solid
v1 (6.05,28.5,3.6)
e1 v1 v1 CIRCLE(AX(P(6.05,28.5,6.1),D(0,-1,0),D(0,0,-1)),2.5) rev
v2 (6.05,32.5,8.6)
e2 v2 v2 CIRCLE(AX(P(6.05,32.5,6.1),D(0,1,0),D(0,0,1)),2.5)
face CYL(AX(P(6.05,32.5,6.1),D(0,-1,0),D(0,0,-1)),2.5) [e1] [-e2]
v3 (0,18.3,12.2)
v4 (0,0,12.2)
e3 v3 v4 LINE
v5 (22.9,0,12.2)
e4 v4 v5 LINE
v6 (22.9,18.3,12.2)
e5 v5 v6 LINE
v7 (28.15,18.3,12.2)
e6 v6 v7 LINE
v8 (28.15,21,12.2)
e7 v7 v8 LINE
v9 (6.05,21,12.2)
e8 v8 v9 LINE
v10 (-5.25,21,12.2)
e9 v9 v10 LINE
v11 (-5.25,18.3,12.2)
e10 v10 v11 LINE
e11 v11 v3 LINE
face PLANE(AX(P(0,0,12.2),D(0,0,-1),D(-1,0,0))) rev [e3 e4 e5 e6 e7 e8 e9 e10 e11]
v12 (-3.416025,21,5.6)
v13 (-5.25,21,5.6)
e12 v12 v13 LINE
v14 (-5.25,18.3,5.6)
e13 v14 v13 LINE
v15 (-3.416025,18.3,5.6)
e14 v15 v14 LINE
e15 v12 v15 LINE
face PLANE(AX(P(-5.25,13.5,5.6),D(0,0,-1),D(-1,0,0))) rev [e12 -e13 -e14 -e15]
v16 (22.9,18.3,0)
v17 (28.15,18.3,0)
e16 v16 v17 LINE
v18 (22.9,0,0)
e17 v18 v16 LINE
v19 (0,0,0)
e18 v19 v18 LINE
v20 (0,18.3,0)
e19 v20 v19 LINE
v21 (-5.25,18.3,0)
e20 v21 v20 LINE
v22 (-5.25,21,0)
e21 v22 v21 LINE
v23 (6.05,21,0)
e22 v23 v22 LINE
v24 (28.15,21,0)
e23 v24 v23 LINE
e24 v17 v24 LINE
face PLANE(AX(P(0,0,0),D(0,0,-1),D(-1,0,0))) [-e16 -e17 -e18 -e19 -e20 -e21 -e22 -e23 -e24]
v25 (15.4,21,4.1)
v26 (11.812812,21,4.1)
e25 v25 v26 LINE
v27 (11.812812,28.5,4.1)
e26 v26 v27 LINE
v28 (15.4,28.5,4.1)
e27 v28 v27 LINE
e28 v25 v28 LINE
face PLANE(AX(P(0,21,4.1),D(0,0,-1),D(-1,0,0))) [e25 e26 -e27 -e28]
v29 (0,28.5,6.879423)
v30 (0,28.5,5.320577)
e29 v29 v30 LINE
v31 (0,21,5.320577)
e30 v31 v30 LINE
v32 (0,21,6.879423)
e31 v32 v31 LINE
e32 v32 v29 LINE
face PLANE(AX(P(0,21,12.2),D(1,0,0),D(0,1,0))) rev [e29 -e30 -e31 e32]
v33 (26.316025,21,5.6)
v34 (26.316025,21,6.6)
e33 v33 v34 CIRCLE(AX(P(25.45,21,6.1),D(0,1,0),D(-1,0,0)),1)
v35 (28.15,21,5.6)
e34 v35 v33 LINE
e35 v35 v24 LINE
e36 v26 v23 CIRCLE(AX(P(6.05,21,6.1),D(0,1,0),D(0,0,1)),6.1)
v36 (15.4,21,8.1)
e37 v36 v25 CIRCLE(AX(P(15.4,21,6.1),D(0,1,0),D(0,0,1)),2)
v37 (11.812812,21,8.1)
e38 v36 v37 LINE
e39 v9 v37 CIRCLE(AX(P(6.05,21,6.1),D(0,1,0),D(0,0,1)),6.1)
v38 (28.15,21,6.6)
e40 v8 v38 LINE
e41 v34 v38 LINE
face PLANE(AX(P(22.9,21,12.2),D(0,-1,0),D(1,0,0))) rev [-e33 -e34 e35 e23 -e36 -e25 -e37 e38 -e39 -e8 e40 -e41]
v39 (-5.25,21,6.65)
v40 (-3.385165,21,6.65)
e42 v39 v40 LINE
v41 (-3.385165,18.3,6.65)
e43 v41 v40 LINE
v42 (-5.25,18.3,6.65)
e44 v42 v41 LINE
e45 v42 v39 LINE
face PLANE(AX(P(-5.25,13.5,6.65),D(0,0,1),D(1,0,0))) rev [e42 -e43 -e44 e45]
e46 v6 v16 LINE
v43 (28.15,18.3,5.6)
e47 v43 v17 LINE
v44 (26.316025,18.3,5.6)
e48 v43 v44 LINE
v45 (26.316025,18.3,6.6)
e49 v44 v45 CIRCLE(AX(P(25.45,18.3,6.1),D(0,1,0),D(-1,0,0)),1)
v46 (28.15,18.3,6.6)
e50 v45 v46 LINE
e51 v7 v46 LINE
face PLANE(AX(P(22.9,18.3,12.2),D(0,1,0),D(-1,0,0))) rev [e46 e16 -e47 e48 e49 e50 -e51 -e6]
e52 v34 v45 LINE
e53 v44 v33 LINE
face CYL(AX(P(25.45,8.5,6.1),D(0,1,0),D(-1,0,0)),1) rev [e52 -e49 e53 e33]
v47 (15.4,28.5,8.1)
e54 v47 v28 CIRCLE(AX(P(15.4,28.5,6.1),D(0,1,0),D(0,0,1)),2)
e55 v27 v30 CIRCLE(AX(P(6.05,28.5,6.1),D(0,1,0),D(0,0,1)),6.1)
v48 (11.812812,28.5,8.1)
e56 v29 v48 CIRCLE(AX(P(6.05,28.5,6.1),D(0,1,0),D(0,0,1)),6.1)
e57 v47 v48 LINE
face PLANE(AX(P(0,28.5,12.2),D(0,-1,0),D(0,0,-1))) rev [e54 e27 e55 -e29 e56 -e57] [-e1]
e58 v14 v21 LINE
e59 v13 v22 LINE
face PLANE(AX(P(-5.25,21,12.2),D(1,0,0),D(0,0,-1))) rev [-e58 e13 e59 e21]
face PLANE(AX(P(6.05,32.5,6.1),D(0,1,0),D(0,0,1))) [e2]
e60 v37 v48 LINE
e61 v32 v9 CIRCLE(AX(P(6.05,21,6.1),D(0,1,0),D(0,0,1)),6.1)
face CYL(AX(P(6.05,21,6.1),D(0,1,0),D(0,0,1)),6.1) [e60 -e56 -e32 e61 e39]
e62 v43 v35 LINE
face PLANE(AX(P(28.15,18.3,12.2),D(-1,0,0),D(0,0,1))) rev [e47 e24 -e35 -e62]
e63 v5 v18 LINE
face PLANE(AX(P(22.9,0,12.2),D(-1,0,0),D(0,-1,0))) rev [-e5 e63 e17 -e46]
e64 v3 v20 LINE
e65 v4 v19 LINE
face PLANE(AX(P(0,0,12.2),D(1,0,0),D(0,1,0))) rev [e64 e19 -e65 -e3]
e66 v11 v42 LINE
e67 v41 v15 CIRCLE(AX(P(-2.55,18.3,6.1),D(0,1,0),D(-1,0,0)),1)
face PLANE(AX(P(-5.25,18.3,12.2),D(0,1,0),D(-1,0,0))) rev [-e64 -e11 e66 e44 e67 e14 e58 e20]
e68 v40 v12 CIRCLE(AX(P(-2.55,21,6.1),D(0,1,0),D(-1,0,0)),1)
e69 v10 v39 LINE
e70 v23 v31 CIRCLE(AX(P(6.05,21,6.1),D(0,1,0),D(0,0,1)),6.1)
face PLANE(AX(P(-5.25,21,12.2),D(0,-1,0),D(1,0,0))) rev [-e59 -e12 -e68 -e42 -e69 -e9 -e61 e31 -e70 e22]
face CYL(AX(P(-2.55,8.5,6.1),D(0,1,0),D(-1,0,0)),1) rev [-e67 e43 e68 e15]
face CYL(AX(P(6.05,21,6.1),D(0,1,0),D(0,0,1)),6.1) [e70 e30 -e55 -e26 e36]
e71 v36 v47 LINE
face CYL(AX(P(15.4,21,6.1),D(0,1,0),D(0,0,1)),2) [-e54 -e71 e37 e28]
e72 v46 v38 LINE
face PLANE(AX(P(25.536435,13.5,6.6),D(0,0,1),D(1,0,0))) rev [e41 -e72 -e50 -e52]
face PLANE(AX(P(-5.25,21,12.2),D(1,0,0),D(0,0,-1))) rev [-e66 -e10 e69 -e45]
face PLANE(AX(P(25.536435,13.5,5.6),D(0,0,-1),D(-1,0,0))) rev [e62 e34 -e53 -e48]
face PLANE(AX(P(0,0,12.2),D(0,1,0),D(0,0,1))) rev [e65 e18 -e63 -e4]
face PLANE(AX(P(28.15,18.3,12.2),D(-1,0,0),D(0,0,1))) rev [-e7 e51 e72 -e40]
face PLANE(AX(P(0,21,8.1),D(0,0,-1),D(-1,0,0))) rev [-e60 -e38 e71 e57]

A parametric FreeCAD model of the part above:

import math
import FreeCAD as App
import Part
import Sketcher

V = App.Vector
Q = App.Units.Quantity

doc = App.newDocument("Part")
params = doc.addObject("Spreadsheet::Sheet", "Params")
for row, (alias, value) in enumerate([
    ("sketch1_width", "22.9 mm"),
    ("sketch1_height", "2.7 mm"),
    ("sketch1_height2", "18.3 mm"),
    ("sketch1_height3", "7.5 mm"),
    ("sketch1_width2", "5.25 mm"),
    ("pad1_length", "12.2 mm"),
    ("sketch2_diameter", "2 mm"),
    ("pocket1_length", "12.5 mm"),
    ("sketch3_diameter", "5 mm"),
    ("pad2_length", "4 mm"),
    ("sketch4_radius", "2 mm"),
    ("sketch4_radius2", "6.1 mm"),
    ("sketch4_width", "6.05 mm"),
    ("sketch4_width2", "16.85 mm"),
    ("pocket2_length", "7.5 mm"),
    ("sketch5_height", "1 mm"),
    ("sketch5_height2", "1.05 mm"),
    ("pocket3_length", "7.5 mm"),
], start=1):
    params.set(f"A{row}", alias)
    params.set(f"B{row}", "=" + value)
    params.setAlias(f"B{row}", alias)

body = doc.addObject("PartDesign::Body", "Body")

sketch1 = body.newObject("Sketcher::SketchObject", "Sketch")
sketch1.AttachmentSupport = (doc.getObject("XY_Plane"), [""])
sketch1.MapMode = "FlatFace"
sketch1.addGeometry(Part.LineSegment(V(-5.2, 21, 0), V(-5.2, 18.3, 0)), False)
sketch1.addGeometry(Part.LineSegment(V(-5.2, 18.3, 0), V(0, 18.3, 0)), False)
sketch1.addGeometry(Part.LineSegment(V(0, 18.3, 0), V(0, 0, 0)), False)
sketch1.addGeometry(Part.LineSegment(V(0, 0, 0), V(22.9, 0, 0)), False)
sketch1.addGeometry(Part.LineSegment(V(22.9, 0, 0), V(22.9, 18.3, 0)), False)
sketch1.addGeometry(Part.LineSegment(V(22.9, 18.3, 0), V(28.1, 18.3, 0)), False)
sketch1.addGeometry(Part.LineSegment(V(28.1, 18.3, 0), V(28.1, 21, 0)), False)
sketch1.addGeometry(Part.LineSegment(V(28.1, 21, 0), V(22.9, 21, 0)), False)
sketch1.addGeometry(Part.LineSegment(V(22.9, 21, 0), V(22.9, 28.5, 0)), False)
sketch1.addGeometry(Part.LineSegment(V(22.9, 28.5, 0), V(0, 28.5, 0)), False)
sketch1.addGeometry(Part.LineSegment(V(0, 28.5, 0), V(0, 21, 0)), False)
sketch1.addGeometry(Part.LineSegment(V(0, 21, 0), V(-5.2, 21, 0)), False)
sketch1.addConstraint(Sketcher.Constraint("Coincident", 0, 2, 1, 1))
sketch1.addConstraint(Sketcher.Constraint("Coincident", 1, 2, 2, 1))
sketch1.addConstraint(Sketcher.Constraint("Coincident", 2, 2, 3, 1))
sketch1.addConstraint(Sketcher.Constraint("Coincident", 3, 2, 4, 1))
sketch1.addConstraint(Sketcher.Constraint("Coincident", 4, 2, 5, 1))
sketch1.addConstraint(Sketcher.Constraint("Coincident", 5, 2, 6, 1))
sketch1.addConstraint(Sketcher.Constraint("Coincident", 6, 2, 7, 1))
sketch1.addConstraint(Sketcher.Constraint("Coincident", 7, 2, 8, 1))
sketch1.addConstraint(Sketcher.Constraint("Coincident", 8, 2, 9, 1))
sketch1.addConstraint(Sketcher.Constraint("Coincident", 9, 2, 10, 1))
sketch1.addConstraint(Sketcher.Constraint("Coincident", 10, 2, 11, 1))
sketch1.addConstraint(Sketcher.Constraint("Coincident", 11, 2, 0, 1))
sketch1.addConstraint(Sketcher.Constraint("Vertical", 0))
sketch1.addConstraint(Sketcher.Constraint("Horizontal", 1))
sketch1.addConstraint(Sketcher.Constraint("Vertical", 2))
sketch1.addConstraint(Sketcher.Constraint("Horizontal", 3))
sketch1.addConstraint(Sketcher.Constraint("Vertical", 4))
sketch1.addConstraint(Sketcher.Constraint("Horizontal", 5))
sketch1.addConstraint(Sketcher.Constraint("Vertical", 6))
sketch1.addConstraint(Sketcher.Constraint("Horizontal", 7))
sketch1.addConstraint(Sketcher.Constraint("Vertical", 8))
sketch1.addConstraint(Sketcher.Constraint("Horizontal", 9))
sketch1.addConstraint(Sketcher.Constraint("Vertical", 10))
sketch1.addConstraint(Sketcher.Constraint("Horizontal", 11))
sketch1.addConstraint(Sketcher.Constraint("Coincident", 2, 2, -1, 1))
sketch1.addConstraint(Sketcher.Constraint("PointOnObject", 9, 2, -2))
sketch1.addConstraint(Sketcher.Constraint("Horizontal", 1, 2, 4, 2))
sketch1.addConstraint(Sketcher.Constraint("Horizontal", 7, 2, 10, 2))
sketch1.addConstraint(Sketcher.Constraint("Vertical", 4, 2, 7, 2))
sketch1.addConstraint(Sketcher.Constraint("Equal", 1, 5))
sketch1.addConstraint(Sketcher.Constraint("DistanceX", 3, 1, 3, 2, Q("22.9 mm")))
sketch1.addConstraint(Sketcher.Constraint("DistanceY", 0, 2, 0, 1, Q("2.7 mm")))
sketch1.addConstraint(Sketcher.Constraint("DistanceY", 2, 2, 2, 1, Q("18.3 mm")))
sketch1.addConstraint(Sketcher.Constraint("DistanceY", 8, 1, 8, 2, Q("7.5 mm")))
sketch1.addConstraint(Sketcher.Constraint("DistanceX", 1, 1, 1, 2, Q("5.25 mm")))
sketch1.setExpression("Constraints[30]", "Params.sketch1_width")
sketch1.setExpression("Constraints[31]", "Params.sketch1_height")
sketch1.setExpression("Constraints[32]", "Params.sketch1_height2")
sketch1.setExpression("Constraints[33]", "Params.sketch1_height3")
sketch1.setExpression("Constraints[34]", "Params.sketch1_width2")
pad1 = body.newObject("PartDesign::Pad", "Pad")
pad1.Profile = sketch1
pad1.setExpression("Length", "Params.pad1_length")

sketch2 = body.newObject("Sketcher::SketchObject", "Sketch001")
sketch2.AttachmentSupport = (doc.getObject("XZ_Plane"), [""])
sketch2.MapMode = "FlatFace"
sketch2.AttachmentOffset = App.Placement(V(0, 0, -21), App.Rotation())
sketch2.addGeometry(Part.Circle(V(-2.5, 6.1, 0), V(0, 0, 1), 1), False)
sketch2.addGeometry(Part.Circle(V(25.4, 6.1, 0), V(0, 0, 1), 1), False)
sketch2.addConstraint(Sketcher.Constraint("Equal", 0, 1))
sketch2.addConstraint(Sketcher.Constraint("Horizontal", 0, 3, 1, 3))
sketch2.addConstraint(Sketcher.Constraint("Diameter", 0, Q("2 mm")))
sketch2.addConstraint(Sketcher.Constraint("DistanceX", 0, 3, 1, 3, Q("28 mm")))
sketch2.addConstraint(Sketcher.Constraint("DistanceY", -1, 1, 0, 3, Q("6.1 mm")))
sketch2.addConstraint(Sketcher.Constraint("DistanceX", 0, 3, -1, 1, Q("2.55 mm")))
sketch2.setExpression("Constraints[2]", "Params.sketch2_diameter")
pocket1 = body.newObject("PartDesign::Pocket", "Pocket")
pocket1.Profile = sketch2
pocket1.setExpression("Length", "Params.pocket1_length")
pocket1.Reversed = True

sketch3 = body.newObject("Sketcher::SketchObject", "Sketch002")
sketch3.AttachmentSupport = (doc.getObject("XZ_Plane"), [""])
sketch3.MapMode = "FlatFace"
sketch3.AttachmentOffset = App.Placement(V(0, 0, -28.5), App.Rotation())
sketch3.addGeometry(Part.Circle(V(6, 6.1, 0), V(0, 0, 1), 2.5), False)
sketch3.addConstraint(Sketcher.Constraint("Diameter", 0, Q("5 mm")))
sketch3.addConstraint(Sketcher.Constraint("DistanceY", -1, 1, 0, 3, Q("6.1 mm")))
sketch3.addConstraint(Sketcher.Constraint("DistanceX", -1, 1, 0, 3, Q("6.05 mm")))
sketch3.setExpression("Constraints[0]", "Params.sketch3_diameter")
pad2 = body.newObject("PartDesign::Pad", "Pad001")
pad2.Profile = sketch3
pad2.setExpression("Length", "Params.pad2_length")
pad2.Reversed = True

sketch4 = body.newObject("Sketcher::SketchObject", "Sketch003")
sketch4.AttachmentSupport = (doc.getObject("XZ_Plane"), [""])
sketch4.MapMode = "FlatFace"
sketch4.AttachmentOffset = App.Placement(V(0, 0, -28.5), App.Rotation())
sketch4.addGeometry(Part.LineSegment(V(6.1, 0, 0), V(0, 0, 0)), False)
sketch4.addGeometry(Part.LineSegment(V(0, 0, 0), V(0, 5.3, 0)), False)
sketch4.addGeometry(Part.ArcOfCircle(Part.Circle(V(6.1, 6.1, 0), V(0, 0, 1), 6.1), math.radians(-173), math.radians(-90)), False)
sketch4.addGeometry(Part.LineSegment(V(22.9, 0, 0), V(6.1, 0, 0)), False)
sketch4.addGeometry(Part.ArcOfCircle(Part.Circle(V(6, 6.1, 0), V(0, 0, 1), 6.1), math.radians(-90), math.radians(-19)), False)
sketch4.addGeometry(Part.LineSegment(V(11.8, 4.1, 0), V(15.4, 4.1, 0)), False)
sketch4.addGeometry(Part.ArcOfCircle(Part.Circle(V(15.4, 6.1, 0), V(0, 0, 1), 2), math.radians(-90), math.radians(90)), False)
sketch4.addGeometry(Part.LineSegment(V(15.4, 8.1, 0), V(11.8, 8.1, 0)), False)
sketch4.addGeometry(Part.ArcOfCircle(Part.Circle(V(6, 6.1, 0), V(0, 0, 1), 6.1), math.radians(19), math.radians(90)), False)
sketch4.addGeometry(Part.LineSegment(V(6.1, 12.2, 0), V(22.9, 12.2, 0)), False)
sketch4.addGeometry(Part.LineSegment(V(22.9, 12.2, 0), V(22.9, 0, 0)), False)
sketch4.addGeometry(Part.ArcOfCircle(Part.Circle(V(6, 6.1, 0), V(0, 0, 1), 6.1), math.radians(90), math.radians(173)), False)
sketch4.addGeometry(Part.LineSegment(V(0, 6.9, 0), V(0, 12.2, 0)), False)
sketch4.addGeometry(Part.LineSegment(V(0, 12.2, 0), V(6.1, 12.2, 0)), False)
sketch4.addConstraint(Sketcher.Constraint("Coincident", 0, 2, 1, 1))
sketch4.addConstraint(Sketcher.Constraint("Coincident", 1, 2, 2, 1))
sketch4.addConstraint(Sketcher.Constraint("Tangent", 2, 2, 0, 1))
sketch4.addConstraint(Sketcher.Constraint("Tangent", 3, 2, 4, 1))
sketch4.addConstraint(Sketcher.Constraint("Coincident", 4, 2, 5, 1))
sketch4.addConstraint(Sketcher.Constraint("Tangent", 5, 2, 6, 1))
sketch4.addConstraint(Sketcher.Constraint("Tangent", 6, 2, 7, 1))
sketch4.addConstraint(Sketcher.Constraint("Coincident", 7, 2, 8, 1))
sketch4.addConstraint(Sketcher.Constraint("Tangent", 8, 2, 9, 1))
sketch4.addConstraint(Sketcher.Constraint("Coincident", 9, 2, 10, 1))
sketch4.addConstraint(Sketcher.Constraint("Coincident", 10, 2, 3, 1))
sketch4.addConstraint(Sketcher.Constraint("Coincident", 11, 2, 12, 1))
sketch4.addConstraint(Sketcher.Constraint("Coincident", 12, 2, 13, 1))
sketch4.addConstraint(Sketcher.Constraint("Tangent", 13, 2, 11, 1))
sketch4.addConstraint(Sketcher.Constraint("Horizontal", 0))
sketch4.addConstraint(Sketcher.Constraint("Vertical", 1))
sketch4.addConstraint(Sketcher.Constraint("Horizontal", 3))
sketch4.addConstraint(Sketcher.Constraint("Horizontal", 5))
sketch4.addConstraint(Sketcher.Constraint("Horizontal", 7))
sketch4.addConstraint(Sketcher.Constraint("Horizontal", 9))
sketch4.addConstraint(Sketcher.Constraint("Vertical", 10))
sketch4.addConstraint(Sketcher.Constraint("Vertical", 12))
sketch4.addConstraint(Sketcher.Constraint("Horizontal", 13))
sketch4.addConstraint(Sketcher.Constraint("Coincident", 0, 2, -1, 1))
sketch4.addConstraint(Sketcher.Constraint("Coincident", 4, 3, 2, 3))
sketch4.addConstraint(Sketcher.Constraint("Coincident", 8, 3, 2, 3))
sketch4.addConstraint(Sketcher.Constraint("Coincident", 11, 3, 2, 3))
sketch4.addConstraint(Sketcher.Constraint("Equal", 2, 4))
sketch4.addConstraint(Sketcher.Constraint("Equal", 4, 8))
sketch4.addConstraint(Sketcher.Constraint("Equal", 8, 11))
sketch4.addConstraint(Sketcher.Constraint("PointOnObject", 11, 2, -2))
sketch4.addConstraint(Sketcher.Constraint("Horizontal", 4, 3, 6, 3))
sketch4.addConstraint(Sketcher.Constraint("Radius", 6, Q("2 mm")))
sketch4.addConstraint(Sketcher.Constraint("Radius", 2, Q("6.1 mm")))
sketch4.addConstraint(Sketcher.Constraint("DistanceX", 0, 2, 0, 1, Q("6.05 mm")))
sketch4.addConstraint(Sketcher.Constraint("DistanceX", 3, 2, 3, 1, Q("16.85 mm")))
sketch4.addConstraint(Sketcher.Constraint("DistanceX", -1, 1, 6, 3, Q("15.4 mm")))
sketch4.setExpression("Constraints[32]", "Params.sketch4_radius")
sketch4.setExpression("Constraints[33]", "Params.sketch4_radius2")
sketch4.setExpression("Constraints[34]", "Params.sketch4_width")
sketch4.setExpression("Constraints[35]", "Params.sketch4_width2")
pocket2 = body.newObject("PartDesign::Pocket", "Pocket001")
pocket2.Profile = sketch4
pocket2.setExpression("Length", "Params.pocket2_length")
pocket2.Reversed = True

sketch5 = body.newObject("Sketcher::SketchObject", "Sketch004")
sketch5.AttachmentSupport = (doc.getObject("XZ_Plane"), [""])
sketch5.MapMode = "FlatFace"
sketch5.AttachmentOffset = App.Placement(V(0, 0, -21), App.Rotation())
sketch5.addGeometry(Part.LineSegment(V(-5.3, 5.6, 0), V(-5.3, 6.7, 0)), False)
sketch5.addGeometry(Part.LineSegment(V(-5.3, 6.7, 0), V(-2.5, 6.7, 0)), False)
sketch5.addGeometry(Part.LineSegment(V(-2.5, 6.7, 0), V(-2.5, 5.6, 0)), False)
sketch5.addGeometry(Part.LineSegment(V(-2.5, 5.6, 0), V(-5.3, 5.6, 0)), False)
sketch5.addGeometry(Part.LineSegment(V(25.5, 5.6, 0), V(25.5, 6.6, 0)), False)
sketch5.addGeometry(Part.LineSegment(V(25.5, 6.6, 0), V(28.2, 6.6, 0)), False)
sketch5.addGeometry(Part.LineSegment(V(28.2, 6.6, 0), V(28.2, 5.6, 0)), False)
sketch5.addGeometry(Part.LineSegment(V(28.2, 5.6, 0), V(25.5, 5.6, 0)), False)
sketch5.addConstraint(Sketcher.Constraint("Coincident", 0, 2, 1, 1))
sketch5.addConstraint(Sketcher.Constraint("Coincident", 1, 2, 2, 1))
sketch5.addConstraint(Sketcher.Constraint("Coincident", 2, 2, 3, 1))
sketch5.addConstraint(Sketcher.Constraint("Coincident", 3, 2, 0, 1))
sketch5.addConstraint(Sketcher.Constraint("Coincident", 4, 2, 5, 1))
sketch5.addConstraint(Sketcher.Constraint("Coincident", 5, 2, 6, 1))
sketch5.addConstraint(Sketcher.Constraint("Coincident", 6, 2, 7, 1))
sketch5.addConstraint(Sketcher.Constraint("Coincident", 7, 2, 4, 1))
sketch5.addConstraint(Sketcher.Constraint("Vertical", 0))
sketch5.addConstraint(Sketcher.Constraint("Horizontal", 1))
sketch5.addConstraint(Sketcher.Constraint("Vertical", 2))
sketch5.addConstraint(Sketcher.Constraint("Horizontal", 3))
sketch5.addConstraint(Sketcher.Constraint("Vertical", 4))
sketch5.addConstraint(Sketcher.Constraint("Horizontal", 5))
sketch5.addConstraint(Sketcher.Constraint("Vertical", 6))
sketch5.addConstraint(Sketcher.Constraint("Horizontal", 7))
sketch5.addConstraint(Sketcher.Constraint("Horizontal", 3, 2, 6, 2))
sketch5.addConstraint(Sketcher.Constraint("DistanceY", 4, 1, 4, 2, Q("1 mm")))
sketch5.addConstraint(Sketcher.Constraint("DistanceY", 0, 1, 0, 2, Q("1.05 mm")))
sketch5.addConstraint(Sketcher.Constraint("DistanceY", -1, 1, 2, 2, Q("5.6 mm")))
sketch5.addConstraint(Sketcher.Constraint("DistanceX", 0, 2, 5, 2, Q("33.4 mm")))
sketch5.addConstraint(Sketcher.Constraint("DistanceX", 0, 2, -1, 1, Q("5.25 mm")))
sketch5.addConstraint(Sketcher.Constraint("DistanceX", 1, 2, 4, 2, Q("28.014298 mm")))
sketch5.addConstraint(Sketcher.Constraint("DistanceX", 1, 1, 1, 2, Q("2.772137 mm")))
sketch5.setExpression("Constraints[17]", "Params.sketch5_height")
sketch5.setExpression("Constraints[18]", "Params.sketch5_height2")
pocket3 = body.newObject("PartDesign::Pocket", "Pocket002")
pocket3.Profile = sketch5
pocket3.setExpression("Length", "Params.pocket3_length")
pocket3.Reversed = True

doc.recompute()
